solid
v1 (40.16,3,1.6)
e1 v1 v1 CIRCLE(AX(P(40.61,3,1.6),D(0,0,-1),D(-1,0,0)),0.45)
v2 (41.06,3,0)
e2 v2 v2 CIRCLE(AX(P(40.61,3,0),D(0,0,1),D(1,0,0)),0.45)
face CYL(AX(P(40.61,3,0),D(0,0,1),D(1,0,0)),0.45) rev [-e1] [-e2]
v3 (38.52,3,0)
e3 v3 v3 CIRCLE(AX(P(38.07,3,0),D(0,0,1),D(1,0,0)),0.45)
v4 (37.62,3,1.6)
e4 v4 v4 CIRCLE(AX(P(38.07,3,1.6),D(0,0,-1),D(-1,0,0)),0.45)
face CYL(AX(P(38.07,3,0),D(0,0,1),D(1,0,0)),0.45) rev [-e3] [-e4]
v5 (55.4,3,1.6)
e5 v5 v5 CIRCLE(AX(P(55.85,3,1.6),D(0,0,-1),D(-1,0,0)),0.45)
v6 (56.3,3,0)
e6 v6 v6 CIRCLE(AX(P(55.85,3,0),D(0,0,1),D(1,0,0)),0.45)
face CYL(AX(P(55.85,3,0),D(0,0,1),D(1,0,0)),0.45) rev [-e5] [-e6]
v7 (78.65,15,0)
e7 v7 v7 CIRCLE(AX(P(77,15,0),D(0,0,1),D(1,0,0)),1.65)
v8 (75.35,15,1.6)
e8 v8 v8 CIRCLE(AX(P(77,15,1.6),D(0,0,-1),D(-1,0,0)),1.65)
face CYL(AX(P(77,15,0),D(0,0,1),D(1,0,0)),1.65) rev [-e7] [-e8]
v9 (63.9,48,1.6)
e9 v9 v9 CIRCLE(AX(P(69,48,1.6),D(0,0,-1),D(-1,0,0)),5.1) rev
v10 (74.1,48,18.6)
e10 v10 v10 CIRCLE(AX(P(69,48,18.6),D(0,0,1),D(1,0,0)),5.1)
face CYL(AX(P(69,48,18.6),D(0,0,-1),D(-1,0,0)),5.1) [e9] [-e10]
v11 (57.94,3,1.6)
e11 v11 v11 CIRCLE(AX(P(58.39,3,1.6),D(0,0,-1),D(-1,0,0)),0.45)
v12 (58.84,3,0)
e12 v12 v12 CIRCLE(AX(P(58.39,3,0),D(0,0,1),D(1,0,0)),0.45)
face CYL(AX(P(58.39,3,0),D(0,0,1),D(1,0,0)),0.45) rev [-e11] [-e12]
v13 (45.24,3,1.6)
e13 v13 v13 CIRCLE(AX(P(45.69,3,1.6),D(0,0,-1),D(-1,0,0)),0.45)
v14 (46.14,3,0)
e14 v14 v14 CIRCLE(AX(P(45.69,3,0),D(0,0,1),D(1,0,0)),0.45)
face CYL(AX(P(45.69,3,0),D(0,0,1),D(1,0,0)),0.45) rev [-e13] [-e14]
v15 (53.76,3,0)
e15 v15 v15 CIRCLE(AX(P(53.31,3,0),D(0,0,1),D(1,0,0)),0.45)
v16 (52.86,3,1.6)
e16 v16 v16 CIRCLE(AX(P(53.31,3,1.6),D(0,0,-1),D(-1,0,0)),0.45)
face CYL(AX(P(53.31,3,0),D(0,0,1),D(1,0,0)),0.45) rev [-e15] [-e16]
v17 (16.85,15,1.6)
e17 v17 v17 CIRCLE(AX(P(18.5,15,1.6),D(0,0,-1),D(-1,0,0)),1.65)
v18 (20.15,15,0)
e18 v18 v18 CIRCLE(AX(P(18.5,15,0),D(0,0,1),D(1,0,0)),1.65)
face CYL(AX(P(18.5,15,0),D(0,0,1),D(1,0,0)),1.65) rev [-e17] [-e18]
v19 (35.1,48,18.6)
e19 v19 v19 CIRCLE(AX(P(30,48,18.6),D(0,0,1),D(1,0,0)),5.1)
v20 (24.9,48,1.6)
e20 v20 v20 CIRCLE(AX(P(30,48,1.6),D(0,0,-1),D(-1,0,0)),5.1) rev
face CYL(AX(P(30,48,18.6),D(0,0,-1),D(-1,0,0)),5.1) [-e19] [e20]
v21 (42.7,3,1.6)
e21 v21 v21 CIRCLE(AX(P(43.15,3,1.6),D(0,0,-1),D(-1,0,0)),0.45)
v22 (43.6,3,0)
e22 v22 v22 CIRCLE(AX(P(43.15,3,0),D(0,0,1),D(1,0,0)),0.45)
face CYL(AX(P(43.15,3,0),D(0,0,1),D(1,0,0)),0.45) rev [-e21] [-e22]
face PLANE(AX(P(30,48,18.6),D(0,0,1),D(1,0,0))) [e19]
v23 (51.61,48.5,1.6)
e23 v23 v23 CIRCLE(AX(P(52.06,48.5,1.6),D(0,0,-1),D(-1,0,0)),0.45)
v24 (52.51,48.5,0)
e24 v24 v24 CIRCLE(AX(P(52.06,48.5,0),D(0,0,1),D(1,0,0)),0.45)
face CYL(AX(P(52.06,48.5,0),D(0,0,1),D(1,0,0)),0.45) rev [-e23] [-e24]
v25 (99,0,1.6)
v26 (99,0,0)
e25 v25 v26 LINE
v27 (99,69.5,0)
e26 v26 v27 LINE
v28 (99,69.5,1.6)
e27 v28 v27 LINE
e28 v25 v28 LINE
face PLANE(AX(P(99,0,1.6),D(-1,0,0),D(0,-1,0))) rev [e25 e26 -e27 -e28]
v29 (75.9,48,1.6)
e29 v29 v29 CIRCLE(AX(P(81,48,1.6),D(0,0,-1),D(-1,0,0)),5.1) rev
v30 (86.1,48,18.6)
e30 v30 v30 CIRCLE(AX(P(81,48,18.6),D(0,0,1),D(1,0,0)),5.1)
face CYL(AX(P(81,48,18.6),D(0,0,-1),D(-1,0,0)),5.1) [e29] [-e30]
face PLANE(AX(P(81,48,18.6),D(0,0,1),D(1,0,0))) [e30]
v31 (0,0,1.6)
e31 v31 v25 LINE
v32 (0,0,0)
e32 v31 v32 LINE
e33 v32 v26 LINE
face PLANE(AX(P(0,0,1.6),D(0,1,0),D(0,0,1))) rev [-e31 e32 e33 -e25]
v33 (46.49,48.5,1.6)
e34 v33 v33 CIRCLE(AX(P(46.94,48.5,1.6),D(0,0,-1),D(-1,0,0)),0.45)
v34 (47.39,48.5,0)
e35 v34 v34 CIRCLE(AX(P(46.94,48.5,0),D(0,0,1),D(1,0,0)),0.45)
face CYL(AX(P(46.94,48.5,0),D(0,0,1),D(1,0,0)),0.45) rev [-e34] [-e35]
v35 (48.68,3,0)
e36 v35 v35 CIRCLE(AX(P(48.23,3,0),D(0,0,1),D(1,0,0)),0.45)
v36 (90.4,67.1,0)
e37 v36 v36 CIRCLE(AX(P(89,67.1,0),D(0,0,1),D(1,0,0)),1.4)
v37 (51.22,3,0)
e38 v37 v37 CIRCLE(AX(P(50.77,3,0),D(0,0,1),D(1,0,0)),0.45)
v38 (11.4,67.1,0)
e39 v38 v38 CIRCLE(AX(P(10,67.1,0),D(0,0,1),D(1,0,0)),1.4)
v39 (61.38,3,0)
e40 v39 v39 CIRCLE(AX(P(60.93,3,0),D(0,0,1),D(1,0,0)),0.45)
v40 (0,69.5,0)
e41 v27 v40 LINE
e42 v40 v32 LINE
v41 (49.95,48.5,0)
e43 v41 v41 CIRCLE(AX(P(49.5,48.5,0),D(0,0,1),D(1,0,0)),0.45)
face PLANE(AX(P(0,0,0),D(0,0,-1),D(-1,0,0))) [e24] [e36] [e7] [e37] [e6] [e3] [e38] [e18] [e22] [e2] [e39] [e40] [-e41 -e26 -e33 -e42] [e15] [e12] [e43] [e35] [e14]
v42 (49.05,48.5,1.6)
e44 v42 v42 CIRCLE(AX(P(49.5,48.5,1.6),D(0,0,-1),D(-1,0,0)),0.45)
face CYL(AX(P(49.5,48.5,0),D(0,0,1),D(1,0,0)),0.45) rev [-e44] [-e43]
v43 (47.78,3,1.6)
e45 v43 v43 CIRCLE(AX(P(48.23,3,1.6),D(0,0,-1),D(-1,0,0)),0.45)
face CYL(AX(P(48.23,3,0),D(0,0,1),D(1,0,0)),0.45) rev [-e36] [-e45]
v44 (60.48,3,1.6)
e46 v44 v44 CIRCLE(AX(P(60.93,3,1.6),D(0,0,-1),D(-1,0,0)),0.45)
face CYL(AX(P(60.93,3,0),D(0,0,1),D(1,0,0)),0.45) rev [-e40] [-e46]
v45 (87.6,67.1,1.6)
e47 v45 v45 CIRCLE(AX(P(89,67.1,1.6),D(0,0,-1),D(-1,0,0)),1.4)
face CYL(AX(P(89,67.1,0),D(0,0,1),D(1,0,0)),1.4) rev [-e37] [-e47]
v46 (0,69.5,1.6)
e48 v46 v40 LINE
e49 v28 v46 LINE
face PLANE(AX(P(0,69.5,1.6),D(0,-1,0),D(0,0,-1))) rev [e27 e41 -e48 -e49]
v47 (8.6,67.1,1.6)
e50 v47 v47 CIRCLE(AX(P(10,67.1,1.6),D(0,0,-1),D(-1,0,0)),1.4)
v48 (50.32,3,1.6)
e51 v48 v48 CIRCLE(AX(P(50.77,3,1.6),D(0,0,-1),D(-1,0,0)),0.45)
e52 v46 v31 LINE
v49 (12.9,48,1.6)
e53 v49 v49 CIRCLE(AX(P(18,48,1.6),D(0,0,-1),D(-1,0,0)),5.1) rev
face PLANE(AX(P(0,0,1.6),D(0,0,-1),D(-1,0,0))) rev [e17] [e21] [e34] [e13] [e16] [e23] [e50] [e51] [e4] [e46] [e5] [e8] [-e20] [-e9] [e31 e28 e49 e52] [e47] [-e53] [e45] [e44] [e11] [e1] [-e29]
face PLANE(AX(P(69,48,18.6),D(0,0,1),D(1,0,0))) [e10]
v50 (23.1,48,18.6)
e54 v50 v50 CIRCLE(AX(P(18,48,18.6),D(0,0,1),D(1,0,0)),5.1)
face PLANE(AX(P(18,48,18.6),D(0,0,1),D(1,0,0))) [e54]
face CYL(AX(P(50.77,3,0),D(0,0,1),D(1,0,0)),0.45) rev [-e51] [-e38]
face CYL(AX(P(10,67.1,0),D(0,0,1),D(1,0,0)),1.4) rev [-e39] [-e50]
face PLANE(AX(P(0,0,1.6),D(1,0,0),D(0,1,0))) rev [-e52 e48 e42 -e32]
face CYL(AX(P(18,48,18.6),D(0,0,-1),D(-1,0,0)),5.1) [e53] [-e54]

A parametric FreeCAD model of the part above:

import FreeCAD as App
import Part
import Sketcher

V = App.Vector


def add_polygon(sketch, points):
    """Adds a closed chain of lines whose ends are joined by coincident constraints."""
    first, n = sketch.GeometryCount, len(points)
    for a, b in zip(points, points[1:] + points[:1]):
        sketch.addGeometry(Part.LineSegment(App.Vector(*a, 0), App.Vector(*b, 0)), False)
    for i in range(n):
        sketch.addConstraint(Sketcher.Constraint("Coincident", first + i, 2, first + (i + 1) % n, 1))

doc = App.newDocument("Part")
params = doc.addObject("Spreadsheet::Sheet", "Params")
for row, (alias, value) in enumerate([
    ("sketch1_width", "99 mm"),
    ("sketch1_height", "69.5 mm"),
    ("pad1_length", "1.6 mm"),
    ("sketch2_diameter", "10.2 mm"),
    ("pad2_length", "17 mm"),
    ("sketch3_diameter", "2.8 mm"),
    ("sketch3_diameter2", "3.3 mm"),
    ("sketch3_diameter3", "0.9 mm"),
], start=1):
    params.set(f"A{row}", alias)
    params.set(f"B{row}", "=" + value)
    params.setAlias(f"B{row}", alias)

body = doc.addObject("PartDesign::Body", "Body")

sketch1 = doc.addObject("Sketcher::SketchObject", "Sketch")
body.addObject(sketch1)
sketch1.AttachmentSupport = (doc.XY_Plane, [""])
sketch1.MapMode = "FlatFace"
add_polygon(sketch1, [(0, 70), (0, 0), (99, 0), (99, 70)])
sketch1.addConstraint([
    Sketcher.Constraint("Vertical", 0),
    Sketcher.Constraint("Horizontal", 1),
    Sketcher.Constraint("Vertical", 2),
    Sketcher.Constraint("Horizontal", 3),
    Sketcher.Constraint("Coincident", 0, 2, -1, 1),
    Sketcher.Constraint("DistanceX", 1, 1, 1, 2, 99.0),
    Sketcher.Constraint("DistanceY", 0, 2, 0, 1, 69.5),
])
sketch1.setExpression("Constraints[9]", "Params.sketch1_width")
sketch1.setExpression("Constraints[10]", "Params.sketch1_height")
pad1 = doc.addObject("PartDesign::Pad", "Pad")
body.addObject(pad1)
pad1.Profile = sketch1
pad1.setExpression("Length", "Params.pad1_length")

sketch2 = doc.addObject("Sketcher::SketchObject", "Sketch001")
body.addObject(sketch2)
sketch2.AttachmentSupport = (doc.XY_Plane, [""])
sketch2.MapMode = "FlatFace"
sketch2.AttachmentOffset = App.Placement(V(0, 0, 1.6), App.Rotation())
sketch2.addGeometry([
    Part.Circle(V(18, 48, 0), V(0, 0, 1), 5),
    Part.Circle(V(30, 48, 0), V(0, 0, 1), 5),
    Part.Circle(V(69, 48, 0), V(0, 0, 1), 5),
    Part.Circle(V(81, 48, 0), V(0, 0, 1), 5),
], False)
sketch2.addConstraint([
    Sketcher.Constraint("Equal", 0, 1),
    Sketcher.Constraint("Equal", 1, 2),
    Sketcher.Constraint("Equal", 2, 3),
    Sketcher.Constraint("Horizontal", 0, 3, 1, 3),
    Sketcher.Constraint("Horizontal", 1, 3, 2, 3),
    Sketcher.Constraint("Horizontal", 2, 3, 3, 3),
    Sketcher.Constraint("Diameter", 0, 10.2),
    Sketcher.Constraint("DistanceX", -1, 1, 0, 3, 18.0),
    Sketcher.Constraint("DistanceY", -1, 1, 0, 3, 48.0),
    Sketcher.Constraint("DistanceX", -1, 1, 1, 3, 30.0),
    Sketcher.Constraint("DistanceX", -1, 1, 2, 3, 69.0),
    Sketcher.Constraint("DistanceX", -1, 1, 3, 3, 81.0),
])
sketch2.setExpression("Constraints[6]", "Params.sketch2_diameter")
pad2 = doc.addObject("PartDesign::Pad", "Pad001")
body.addObject(pad2)
pad2.Profile = sketch2
pad2.setExpression("Length", "Params.pad2_length")

sketch3 = doc.addObject("Sketcher::SketchObject", "Sketch002")
body.addObject(sketch3)
sketch3.AttachmentSupport = (doc.XY_Plane, [""])
sketch3.MapMode = "FlatFace"
sketch3.AttachmentOffset = App.Placement(V(0, 0, 1.6), App.Rotation())
sketch3.addGeometry([
    Part.Circle(V(10, 67.1, 0), V(0, 0, 1), 1.4),
    Part.Circle(V(89, 67.1, 0), V(0, 0, 1), 1.4),
    Part.Circle(V(18.5, 15, 0), V(0, 0, 1), 1.65),
    Part.Circle(V(77, 15, 0), V(0, 0, 1), 1.65),
    Part.Circle(V(49.5, 48.5, 0), V(0, 0, 1), 0.45),
    Part.Circle(V(52.06, 48.5, 0), V(0, 0, 1), 0.45),
    Part.Circle(V(46.94, 48.5, 0), V(0, 0, 1), 0.45),
    Part.Circle(V(43.15, 3, 0), V(0, 0, 1), 0.45),
    Part.Circle(V(45.69, 3, 0), V(0, 0, 1), 0.45),
    Part.Circle(V(48.23, 3, 0), V(0, 0, 1), 0.45),
    Part.Circle(V(50.77, 3, 0), V(0, 0, 1), 0.45),
    Part.Circle(V(53.31, 3, 0), V(0, 0, 1), 0.45),
    Part.Circle(V(55.85, 3, 0), V(0, 0, 1), 0.45),
    Part.Circle(V(58.39, 3, 0), V(0, 0, 1), 0.45),
    Part.Circle(V(60.93, 3, 0), V(0, 0, 1), 0.45),
    Part.Circle(V(40.61, 3, 0), V(0, 0, 1), 0.45),
    Part.Circle(V(38.07, 3, 0), V(0, 0, 1), 0.45),
], False)
sketch3.addConstraint([
    Sketcher.Constraint("Equal", 0, 1),
    Sketcher.Constraint("Equal", 2, 3),
    Sketcher.Constraint("Equal", 4, 5),
    Sketcher.Constraint("Equal", 5, 6),
    Sketcher.Constraint("Equal", 6, 7),
    Sketcher.Constraint("Equal", 7, 8),
    Sketcher.Constraint("Equal", 8, 9),
    Sketcher.Constraint("Equal", 9, 10),
    Sketcher.Constraint("Equal", 10, 11),
    Sketcher.Constraint("Equal", 11, 12),
    Sketcher.Constraint("Equal", 12, 13),
    Sketcher.Constraint("Equal", 13, 14),
    Sketcher.Constraint("Equal", 14, 15),
    Sketcher.Constraint("Equal", 15, 16),
    Sketcher.Constraint("Horizontal", 0, 3, 1, 3),
    Sketcher.Constraint("Horizontal", 2, 3, 3, 3),
    Sketcher.Constraint("Horizontal", 4, 3, 5, 3),
    Sketcher.Constraint("Horizontal", 5, 3, 6, 3),
    Sketcher.Constraint("Horizontal", 7, 3, 8, 3),
    Sketcher.Constraint("Horizontal", 8, 3, 9, 3),
    Sketcher.Constraint("Horizontal", 9, 3, 10, 3),
    Sketcher.Constraint("Horizontal", 10, 3, 11, 3),
    Sketcher.Constraint("Horizontal", 11, 3, 12, 3),
    Sketcher.Constraint("Horizontal", 12, 3, 13, 3),
    Sketcher.Constraint("Horizontal", 13, 3, 14, 3),
    Sketcher.Constraint("Horizontal", 14, 3, 15, 3),
    Sketcher.Constraint("Horizontal", 15, 3, 16, 3),
    Sketcher.Constraint("Diameter", 0, 2.8),
    Sketcher.Constraint("Diameter", 2, 3.3),
    Sketcher.Constraint("Diameter", 4, 0.9),
    Sketcher.Constraint("DistanceX", -1, 1, 0, 3, 10.0),
    Sketcher.Constraint("DistanceX", -1, 1, 1, 3, 89.0),
    Sketcher.Constraint("DistanceY", -1, 1, 2, 3, 15.0),
    Sketcher.Constraint("DistanceX", -1, 1, 3, 3, 77.0),
    Sketcher.Constraint("DistanceY", -1, 1, 7, 3, 3.0),
    Sketcher.Constraint("DistanceX", 2, 3, 4, 3, 31.0),
    Sketcher.Constraint("DistanceY", -1, 1, 0, 3, 67.1),
    Sketcher.Constraint("DistanceX", -1, 1, 2, 3, 18.5),
    Sketcher.Constraint("DistanceY", -1, 1, 4, 3, 48.5),
    Sketcher.Constraint("DistanceX", 7, 3, 12, 3, 12.7),
    Sketcher.Constraint("DistanceX", 8, 3, 13, 3, 12.7),
    Sketcher.Constraint("DistanceX", 9, 3, 14, 3, 12.7),
    Sketcher.Constraint("DistanceX", 15, 3, 11, 3, 12.7),
    Sketcher.Constraint("DistanceX", 16, 3, 10, 3, 12.7),
    Sketcher.Constraint("DistanceX", -1, 1, 5, 3, 52.06),
    Sketcher.Constraint("DistanceX", -1, 1, 6, 3, 46.94),
    Sketcher.Constraint("DistanceX", -1, 1, 7, 3, 43.15),
    Sketcher.Constraint("DistanceX", -1, 1, 8, 3, 45.69),
    Sketcher.Constraint("DistanceX", -1, 1, 9, 3, 48.23),
    Sketcher.Constraint("DistanceX", -1, 1, 10, 3, 50.77),
    Sketcher.Constraint("DistanceX", -1, 1, 11, 3, 53.31),
])
sketch3.setExpression("Constraints[27]", "Params.sketch3_diameter")
sketch3.setExpression("Constraints[28]", "Params.sketch3_diameter2")
sketch3.setExpression("Constraints[29]", "Params.sketch3_diameter3")
pocket1 = doc.addObject("PartDesign::Pocket", "Pocket")
body.addObject(pocket1)
pocket1.Profile = sketch3
pocket1.Type = "ThroughAll"
pocket1.Midplane = True

doc.recompute()
